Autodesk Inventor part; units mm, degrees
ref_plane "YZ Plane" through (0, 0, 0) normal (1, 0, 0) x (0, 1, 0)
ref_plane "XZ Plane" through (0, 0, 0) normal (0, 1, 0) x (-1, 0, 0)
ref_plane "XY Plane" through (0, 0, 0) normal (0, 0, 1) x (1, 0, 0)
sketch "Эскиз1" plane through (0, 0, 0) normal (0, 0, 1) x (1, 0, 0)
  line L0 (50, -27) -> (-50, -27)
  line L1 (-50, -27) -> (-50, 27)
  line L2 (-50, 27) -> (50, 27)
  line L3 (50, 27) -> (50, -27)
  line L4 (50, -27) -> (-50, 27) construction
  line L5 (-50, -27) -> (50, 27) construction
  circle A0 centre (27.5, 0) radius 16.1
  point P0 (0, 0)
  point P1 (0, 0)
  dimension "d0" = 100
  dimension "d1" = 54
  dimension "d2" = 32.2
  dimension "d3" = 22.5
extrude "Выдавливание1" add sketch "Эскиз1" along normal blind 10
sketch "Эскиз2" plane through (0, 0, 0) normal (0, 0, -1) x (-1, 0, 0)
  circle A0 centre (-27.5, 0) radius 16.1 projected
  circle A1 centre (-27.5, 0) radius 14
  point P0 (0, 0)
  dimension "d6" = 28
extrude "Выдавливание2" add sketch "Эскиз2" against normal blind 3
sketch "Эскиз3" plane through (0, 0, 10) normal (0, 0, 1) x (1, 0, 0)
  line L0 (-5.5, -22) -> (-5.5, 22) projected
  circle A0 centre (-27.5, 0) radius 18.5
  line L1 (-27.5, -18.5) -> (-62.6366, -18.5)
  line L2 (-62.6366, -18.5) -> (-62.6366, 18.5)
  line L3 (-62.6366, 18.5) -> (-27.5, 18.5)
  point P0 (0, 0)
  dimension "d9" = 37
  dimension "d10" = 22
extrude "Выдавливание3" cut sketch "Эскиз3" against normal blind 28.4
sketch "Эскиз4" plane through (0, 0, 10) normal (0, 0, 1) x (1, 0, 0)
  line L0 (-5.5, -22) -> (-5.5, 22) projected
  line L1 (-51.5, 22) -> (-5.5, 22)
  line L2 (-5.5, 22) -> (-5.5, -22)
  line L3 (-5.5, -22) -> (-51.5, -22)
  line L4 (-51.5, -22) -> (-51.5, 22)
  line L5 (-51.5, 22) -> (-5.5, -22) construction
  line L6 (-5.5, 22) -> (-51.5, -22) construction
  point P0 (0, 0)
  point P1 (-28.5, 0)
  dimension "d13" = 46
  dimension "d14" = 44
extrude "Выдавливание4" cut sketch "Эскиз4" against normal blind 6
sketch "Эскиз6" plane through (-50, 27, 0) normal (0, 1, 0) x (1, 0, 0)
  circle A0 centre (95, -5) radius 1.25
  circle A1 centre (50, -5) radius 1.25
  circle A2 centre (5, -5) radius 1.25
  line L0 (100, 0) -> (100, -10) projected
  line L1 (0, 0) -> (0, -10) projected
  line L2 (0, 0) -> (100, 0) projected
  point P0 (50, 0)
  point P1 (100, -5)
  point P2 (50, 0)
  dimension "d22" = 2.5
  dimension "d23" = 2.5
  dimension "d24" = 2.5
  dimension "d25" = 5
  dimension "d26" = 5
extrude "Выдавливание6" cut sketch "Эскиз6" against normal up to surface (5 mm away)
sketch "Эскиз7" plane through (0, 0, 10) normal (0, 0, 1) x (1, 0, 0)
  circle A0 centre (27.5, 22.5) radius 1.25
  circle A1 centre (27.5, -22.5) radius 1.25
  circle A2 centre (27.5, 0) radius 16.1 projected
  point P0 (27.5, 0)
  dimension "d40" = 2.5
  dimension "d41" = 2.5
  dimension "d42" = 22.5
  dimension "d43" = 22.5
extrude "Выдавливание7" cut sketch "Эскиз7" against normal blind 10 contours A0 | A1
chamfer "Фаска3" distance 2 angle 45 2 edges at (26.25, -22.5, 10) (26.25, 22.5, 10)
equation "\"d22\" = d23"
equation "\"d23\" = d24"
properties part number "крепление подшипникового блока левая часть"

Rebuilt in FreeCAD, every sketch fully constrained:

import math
import FreeCAD as App
import Part
import Sketcher

V = App.Vector
Q = App.Units.Quantity


def edges_at(feature, points):
    """Names of the edges that pass closest to the given points."""
    edges = feature.Shape.Edges
    near = lambda p: min(range(len(edges)), key=lambda i: edges[i].distToShape(Part.Vertex(*p))[0])
    return sorted({f"Edge{near(p) + 1}" for p in points})


def add_polygon(sketch, points):
    """Adds a closed chain of lines whose ends are joined by coincident constraints."""
    first, n = sketch.GeometryCount, len(points)
    for a, b in zip(points, points[1:] + points[:1]):
        sketch.addGeometry(Part.LineSegment(App.Vector(*a, 0), App.Vector(*b, 0)), False)
    for i in range(n):
        sketch.addConstraint(Sketcher.Constraint("Coincident", first + i, 2, first + (i + 1) % n, 1))

doc = App.newDocument("Part")
body = doc.addObject("PartDesign::Body", "Body")

sketch1 = body.newObject("Sketcher::SketchObject", "Sketch")
sketch1.AttachmentSupport = (doc.getObject("XY_Plane"), [""])
sketch1.MapMode = "FlatFace"
add_polygon(sketch1, [(-50, -27), (50, -27), (50, 27), (-50, 27)])
sketch1.addGeometry(Part.Circle(V(27.5, 0, 0), V(0, 0, 1), 16.1), False)
sketch1.addConstraint(Sketcher.Constraint("Horizontal", 0))
sketch1.addConstraint(Sketcher.Constraint("Vertical", 1))
sketch1.addConstraint(Sketcher.Constraint("Horizontal", 2))
sketch1.addConstraint(Sketcher.Constraint("Vertical", 3))
sketch1.addConstraint(Sketcher.Constraint("Symmetric", 0, 2, 2, 2, -1, 1))
sketch1.addConstraint(Sketcher.Constraint("PointOnObject", 4, 3, -1))
sketch1.addConstraint(Sketcher.Constraint("Diameter", 4, Q("32.2 mm")))
sketch1.addConstraint(Sketcher.Constraint("DistanceX", 0, 1, 0, 2, Q("100 mm")))
sketch1.addConstraint(Sketcher.Constraint("DistanceY", 1, 1, 1, 2, Q("54 mm")))
sketch1.addConstraint(Sketcher.Constraint("DistanceX", 4, 3, 0, 2, Q("22.5 mm")))
pad1 = body.newObject("PartDesign::Pad", "Pad")
pad1.Profile = sketch1
pad1.Length = 10

sketch2 = body.newObject("Sketcher::SketchObject", "Sketch001")
sketch2.AttachmentSupport = (doc.getObject("XY_Plane"), [""])
sketch2.MapMode = "FlatFace"
sketch2.addGeometry(Part.Circle(V(27.5, 0, 0), V(0, 0, 1), 16.1), False)
sketch2.addGeometry(Part.Circle(V(27.5, 0, 0), V(0, 0, 1), 14), False)
sketch2.addConstraint(Sketcher.Constraint("Coincident", 1, 3, 0, 3))
sketch2.addConstraint(Sketcher.Constraint("PointOnObject", 0, 3, -1))
sketch2.addConstraint(Sketcher.Constraint("Diameter", 1, Q("28 mm")))
sketch2.addConstraint(Sketcher.Constraint("Diameter", 0, Q("32.2 mm")))
sketch2.addConstraint(Sketcher.Constraint("DistanceX", -1, 1, 0, 3, Q("27.5 mm")))
pad2 = body.newObject("PartDesign::Pad", "Pad001")
pad2.Profile = sketch2
pad2.Length = 3

sketch3 = body.newObject("Sketcher::SketchObject", "Sketch002")
sketch3.AttachmentSupport = (doc.getObject("XY_Plane"), [""])
sketch3.MapMode = "FlatFace"
sketch3.AttachmentOffset = App.Placement(V(0, 0, 10), App.Rotation())
sketch3.addGeometry(Part.ArcOfCircle(Part.Circle(V(-27.5, 0, 0), V(0, 0, 1), 18.5), math.radians(-90), math.radians(90)), False)
sketch3.addGeometry(Part.LineSegment(V(-27.5, 18.5, 0), V(-62.6366, 18.5, 0)), False)
sketch3.addGeometry(Part.LineSegment(V(-62.6366, 18.5, 0), V(-62.6366, -18.5, 0)), False)
sketch3.addGeometry(Part.LineSegment(V(-62.6366, -18.5, 0), V(-27.5, -18.5, 0)), False)
sketch3.addConstraint(Sketcher.Constraint("Tangent", 0, 2, 1, 1))
sketch3.addConstraint(Sketcher.Constraint("Coincident", 1, 2, 2, 1))
sketch3.addConstraint(Sketcher.Constraint("Coincident", 2, 2, 3, 1))
sketch3.addConstraint(Sketcher.Constraint("Tangent", 3, 2, 0, 1))
sketch3.addConstraint(Sketcher.Constraint("Horizontal", 1))
sketch3.addConstraint(Sketcher.Constraint("Vertical", 2))
sketch3.addConstraint(Sketcher.Constraint("Horizontal", 3))
sketch3.addConstraint(Sketcher.Constraint("PointOnObject", 0, 3, -1))
sketch3.addConstraint(Sketcher.Constraint("Radius", 0, Q("18.5 mm")))
sketch3.addConstraint(Sketcher.Constraint("DistanceX", 0, 3, -1, 1, Q("27.5 mm")))
sketch3.addConstraint(Sketcher.Constraint("DistanceX", 1, 2, 1, 1, Q("35.1366 mm")))
pocket1 = body.newObject("PartDesign::Pocket", "Pocket")
pocket1.Profile = sketch3
pocket1.Length = 28.4

sketch4 = body.newObject("Sketcher::SketchObject", "Sketch003")
sketch4.AttachmentSupport = (doc.getObject("XY_Plane"), [""])
sketch4.MapMode = "FlatFace"
sketch4.AttachmentOffset = App.Placement(V(0, 0, 10), App.Rotation())
add_polygon(sketch4, [(-51.5, -22), (-5.5, -22), (-5.5, 22), (-51.5, 22)])
sketch4.addConstraint(Sketcher.Constraint("Horizontal", 0))
sketch4.addConstraint(Sketcher.Constraint("Vertical", 1))
sketch4.addConstraint(Sketcher.Constraint("Horizontal", 2))
sketch4.addConstraint(Sketcher.Constraint("Vertical", 3))
sketch4.addConstraint(Sketcher.Constraint("DistanceX", 0, 1, 0, 2, Q("46 mm")))
sketch4.addConstraint(Sketcher.Constraint("DistanceY", 1, 1, 1, 2, Q("44 mm")))
sketch4.addConstraint(Sketcher.Constraint("DistanceY", 0, 2, -1, 1, Q("22 mm")))
sketch4.addConstraint(Sketcher.Constraint("DistanceX", 0, 2, -1, 1, Q("5.5 mm")))
pocket2 = body.newObject("PartDesign::Pocket", "Pocket001")
pocket2.Profile = sketch4
pocket2.Length = 6

sketch5 = body.newObject("Sketcher::SketchObject", "Sketch004")
sketch5.AttachmentSupport = (doc.getObject("XZ_Plane"), [""])
sketch5.MapMode = "FlatFace"
sketch5.AttachmentOffset = App.Placement(V(0, 0, -27), App.Rotation())
sketch5.addGeometry(Part.Circle(V(45, 5, 0), V(0, 0, 1), 1.25), False)
sketch5.addGeometry(Part.Circle(V(0, 5, 0), V(0, 0, 1), 1.25), False)
sketch5.addGeometry(Part.Circle(V(-45, 5, 0), V(0, 0, 1), 1.25), False)
sketch5.addConstraint(Sketcher.Constraint("Equal", 0, 1))
sketch5.addConstraint(Sketcher.Constraint("Equal", 1, 2))
sketch5.addConstraint(Sketcher.Constraint("Symmetric", 0, 3, 2, 3, -2))
sketch5.addConstraint(Sketcher.Constraint("PointOnObject", 1, 3, -2))
sketch5.addConstraint(Sketcher.Constraint("Horizontal", 0, 3, 1, 3))
sketch5.addConstraint(Sketcher.Constraint("Diameter", 0, Q("2.5 mm")))
sketch5.addConstraint(Sketcher.Constraint("DistanceY", -1, 1, 0, 3, Q("5 mm")))
sketch5.addConstraint(Sketcher.Constraint("DistanceX", -1, 1, 0, 3, Q("45 mm")))
pocket3 = body.newObject("PartDesign::Pocket", "Pocket002")
pocket3.Profile = sketch5
pocket3.Length = 5
pocket3.Reversed = True

sketch6 = body.newObject("Sketcher::SketchObject", "Sketch005")
sketch6.AttachmentSupport = (doc.getObject("XY_Plane"), [""])
sketch6.MapMode = "FlatFace"
sketch6.AttachmentOffset = App.Placement(V(0, 0, 10), App.Rotation())
sketch6.addGeometry(Part.Circle(V(27.5, 22.5, 0), V(0, 0, 1), 1.25), False)
sketch6.addGeometry(Part.Circle(V(27.5, -22.5, 0), V(0, 0, 1), 1.25), False)
sketch6.addConstraint(Sketcher.Constraint("Equal", 0, 1))
sketch6.addConstraint(Sketcher.Constraint("Symmetric", 0, 3, 1, 3, -1))
sketch6.addConstraint(Sketcher.Constraint("Diameter", 0, Q("2.5 mm")))
sketch6.addConstraint(Sketcher.Constraint("DistanceY", -1, 1, 0, 3, Q("22.5 mm")))
sketch6.addConstraint(Sketcher.Constraint("DistanceX", -1, 1, 0, 3, Q("27.5 mm")))
pocket4 = body.newObject("PartDesign::Pocket", "Pocket003")
pocket4.Profile = sketch6
pocket4.Length = 10
doc.recompute()

chamfer = body.newObject("PartDesign::Chamfer", "Chamfer")
chamfer.Base = (pocket4, edges_at(pocket4, [(26.25, -22.5, 10), (26.25, 22.5, 10)]))
chamfer.Size = 2

doc.recompute()
